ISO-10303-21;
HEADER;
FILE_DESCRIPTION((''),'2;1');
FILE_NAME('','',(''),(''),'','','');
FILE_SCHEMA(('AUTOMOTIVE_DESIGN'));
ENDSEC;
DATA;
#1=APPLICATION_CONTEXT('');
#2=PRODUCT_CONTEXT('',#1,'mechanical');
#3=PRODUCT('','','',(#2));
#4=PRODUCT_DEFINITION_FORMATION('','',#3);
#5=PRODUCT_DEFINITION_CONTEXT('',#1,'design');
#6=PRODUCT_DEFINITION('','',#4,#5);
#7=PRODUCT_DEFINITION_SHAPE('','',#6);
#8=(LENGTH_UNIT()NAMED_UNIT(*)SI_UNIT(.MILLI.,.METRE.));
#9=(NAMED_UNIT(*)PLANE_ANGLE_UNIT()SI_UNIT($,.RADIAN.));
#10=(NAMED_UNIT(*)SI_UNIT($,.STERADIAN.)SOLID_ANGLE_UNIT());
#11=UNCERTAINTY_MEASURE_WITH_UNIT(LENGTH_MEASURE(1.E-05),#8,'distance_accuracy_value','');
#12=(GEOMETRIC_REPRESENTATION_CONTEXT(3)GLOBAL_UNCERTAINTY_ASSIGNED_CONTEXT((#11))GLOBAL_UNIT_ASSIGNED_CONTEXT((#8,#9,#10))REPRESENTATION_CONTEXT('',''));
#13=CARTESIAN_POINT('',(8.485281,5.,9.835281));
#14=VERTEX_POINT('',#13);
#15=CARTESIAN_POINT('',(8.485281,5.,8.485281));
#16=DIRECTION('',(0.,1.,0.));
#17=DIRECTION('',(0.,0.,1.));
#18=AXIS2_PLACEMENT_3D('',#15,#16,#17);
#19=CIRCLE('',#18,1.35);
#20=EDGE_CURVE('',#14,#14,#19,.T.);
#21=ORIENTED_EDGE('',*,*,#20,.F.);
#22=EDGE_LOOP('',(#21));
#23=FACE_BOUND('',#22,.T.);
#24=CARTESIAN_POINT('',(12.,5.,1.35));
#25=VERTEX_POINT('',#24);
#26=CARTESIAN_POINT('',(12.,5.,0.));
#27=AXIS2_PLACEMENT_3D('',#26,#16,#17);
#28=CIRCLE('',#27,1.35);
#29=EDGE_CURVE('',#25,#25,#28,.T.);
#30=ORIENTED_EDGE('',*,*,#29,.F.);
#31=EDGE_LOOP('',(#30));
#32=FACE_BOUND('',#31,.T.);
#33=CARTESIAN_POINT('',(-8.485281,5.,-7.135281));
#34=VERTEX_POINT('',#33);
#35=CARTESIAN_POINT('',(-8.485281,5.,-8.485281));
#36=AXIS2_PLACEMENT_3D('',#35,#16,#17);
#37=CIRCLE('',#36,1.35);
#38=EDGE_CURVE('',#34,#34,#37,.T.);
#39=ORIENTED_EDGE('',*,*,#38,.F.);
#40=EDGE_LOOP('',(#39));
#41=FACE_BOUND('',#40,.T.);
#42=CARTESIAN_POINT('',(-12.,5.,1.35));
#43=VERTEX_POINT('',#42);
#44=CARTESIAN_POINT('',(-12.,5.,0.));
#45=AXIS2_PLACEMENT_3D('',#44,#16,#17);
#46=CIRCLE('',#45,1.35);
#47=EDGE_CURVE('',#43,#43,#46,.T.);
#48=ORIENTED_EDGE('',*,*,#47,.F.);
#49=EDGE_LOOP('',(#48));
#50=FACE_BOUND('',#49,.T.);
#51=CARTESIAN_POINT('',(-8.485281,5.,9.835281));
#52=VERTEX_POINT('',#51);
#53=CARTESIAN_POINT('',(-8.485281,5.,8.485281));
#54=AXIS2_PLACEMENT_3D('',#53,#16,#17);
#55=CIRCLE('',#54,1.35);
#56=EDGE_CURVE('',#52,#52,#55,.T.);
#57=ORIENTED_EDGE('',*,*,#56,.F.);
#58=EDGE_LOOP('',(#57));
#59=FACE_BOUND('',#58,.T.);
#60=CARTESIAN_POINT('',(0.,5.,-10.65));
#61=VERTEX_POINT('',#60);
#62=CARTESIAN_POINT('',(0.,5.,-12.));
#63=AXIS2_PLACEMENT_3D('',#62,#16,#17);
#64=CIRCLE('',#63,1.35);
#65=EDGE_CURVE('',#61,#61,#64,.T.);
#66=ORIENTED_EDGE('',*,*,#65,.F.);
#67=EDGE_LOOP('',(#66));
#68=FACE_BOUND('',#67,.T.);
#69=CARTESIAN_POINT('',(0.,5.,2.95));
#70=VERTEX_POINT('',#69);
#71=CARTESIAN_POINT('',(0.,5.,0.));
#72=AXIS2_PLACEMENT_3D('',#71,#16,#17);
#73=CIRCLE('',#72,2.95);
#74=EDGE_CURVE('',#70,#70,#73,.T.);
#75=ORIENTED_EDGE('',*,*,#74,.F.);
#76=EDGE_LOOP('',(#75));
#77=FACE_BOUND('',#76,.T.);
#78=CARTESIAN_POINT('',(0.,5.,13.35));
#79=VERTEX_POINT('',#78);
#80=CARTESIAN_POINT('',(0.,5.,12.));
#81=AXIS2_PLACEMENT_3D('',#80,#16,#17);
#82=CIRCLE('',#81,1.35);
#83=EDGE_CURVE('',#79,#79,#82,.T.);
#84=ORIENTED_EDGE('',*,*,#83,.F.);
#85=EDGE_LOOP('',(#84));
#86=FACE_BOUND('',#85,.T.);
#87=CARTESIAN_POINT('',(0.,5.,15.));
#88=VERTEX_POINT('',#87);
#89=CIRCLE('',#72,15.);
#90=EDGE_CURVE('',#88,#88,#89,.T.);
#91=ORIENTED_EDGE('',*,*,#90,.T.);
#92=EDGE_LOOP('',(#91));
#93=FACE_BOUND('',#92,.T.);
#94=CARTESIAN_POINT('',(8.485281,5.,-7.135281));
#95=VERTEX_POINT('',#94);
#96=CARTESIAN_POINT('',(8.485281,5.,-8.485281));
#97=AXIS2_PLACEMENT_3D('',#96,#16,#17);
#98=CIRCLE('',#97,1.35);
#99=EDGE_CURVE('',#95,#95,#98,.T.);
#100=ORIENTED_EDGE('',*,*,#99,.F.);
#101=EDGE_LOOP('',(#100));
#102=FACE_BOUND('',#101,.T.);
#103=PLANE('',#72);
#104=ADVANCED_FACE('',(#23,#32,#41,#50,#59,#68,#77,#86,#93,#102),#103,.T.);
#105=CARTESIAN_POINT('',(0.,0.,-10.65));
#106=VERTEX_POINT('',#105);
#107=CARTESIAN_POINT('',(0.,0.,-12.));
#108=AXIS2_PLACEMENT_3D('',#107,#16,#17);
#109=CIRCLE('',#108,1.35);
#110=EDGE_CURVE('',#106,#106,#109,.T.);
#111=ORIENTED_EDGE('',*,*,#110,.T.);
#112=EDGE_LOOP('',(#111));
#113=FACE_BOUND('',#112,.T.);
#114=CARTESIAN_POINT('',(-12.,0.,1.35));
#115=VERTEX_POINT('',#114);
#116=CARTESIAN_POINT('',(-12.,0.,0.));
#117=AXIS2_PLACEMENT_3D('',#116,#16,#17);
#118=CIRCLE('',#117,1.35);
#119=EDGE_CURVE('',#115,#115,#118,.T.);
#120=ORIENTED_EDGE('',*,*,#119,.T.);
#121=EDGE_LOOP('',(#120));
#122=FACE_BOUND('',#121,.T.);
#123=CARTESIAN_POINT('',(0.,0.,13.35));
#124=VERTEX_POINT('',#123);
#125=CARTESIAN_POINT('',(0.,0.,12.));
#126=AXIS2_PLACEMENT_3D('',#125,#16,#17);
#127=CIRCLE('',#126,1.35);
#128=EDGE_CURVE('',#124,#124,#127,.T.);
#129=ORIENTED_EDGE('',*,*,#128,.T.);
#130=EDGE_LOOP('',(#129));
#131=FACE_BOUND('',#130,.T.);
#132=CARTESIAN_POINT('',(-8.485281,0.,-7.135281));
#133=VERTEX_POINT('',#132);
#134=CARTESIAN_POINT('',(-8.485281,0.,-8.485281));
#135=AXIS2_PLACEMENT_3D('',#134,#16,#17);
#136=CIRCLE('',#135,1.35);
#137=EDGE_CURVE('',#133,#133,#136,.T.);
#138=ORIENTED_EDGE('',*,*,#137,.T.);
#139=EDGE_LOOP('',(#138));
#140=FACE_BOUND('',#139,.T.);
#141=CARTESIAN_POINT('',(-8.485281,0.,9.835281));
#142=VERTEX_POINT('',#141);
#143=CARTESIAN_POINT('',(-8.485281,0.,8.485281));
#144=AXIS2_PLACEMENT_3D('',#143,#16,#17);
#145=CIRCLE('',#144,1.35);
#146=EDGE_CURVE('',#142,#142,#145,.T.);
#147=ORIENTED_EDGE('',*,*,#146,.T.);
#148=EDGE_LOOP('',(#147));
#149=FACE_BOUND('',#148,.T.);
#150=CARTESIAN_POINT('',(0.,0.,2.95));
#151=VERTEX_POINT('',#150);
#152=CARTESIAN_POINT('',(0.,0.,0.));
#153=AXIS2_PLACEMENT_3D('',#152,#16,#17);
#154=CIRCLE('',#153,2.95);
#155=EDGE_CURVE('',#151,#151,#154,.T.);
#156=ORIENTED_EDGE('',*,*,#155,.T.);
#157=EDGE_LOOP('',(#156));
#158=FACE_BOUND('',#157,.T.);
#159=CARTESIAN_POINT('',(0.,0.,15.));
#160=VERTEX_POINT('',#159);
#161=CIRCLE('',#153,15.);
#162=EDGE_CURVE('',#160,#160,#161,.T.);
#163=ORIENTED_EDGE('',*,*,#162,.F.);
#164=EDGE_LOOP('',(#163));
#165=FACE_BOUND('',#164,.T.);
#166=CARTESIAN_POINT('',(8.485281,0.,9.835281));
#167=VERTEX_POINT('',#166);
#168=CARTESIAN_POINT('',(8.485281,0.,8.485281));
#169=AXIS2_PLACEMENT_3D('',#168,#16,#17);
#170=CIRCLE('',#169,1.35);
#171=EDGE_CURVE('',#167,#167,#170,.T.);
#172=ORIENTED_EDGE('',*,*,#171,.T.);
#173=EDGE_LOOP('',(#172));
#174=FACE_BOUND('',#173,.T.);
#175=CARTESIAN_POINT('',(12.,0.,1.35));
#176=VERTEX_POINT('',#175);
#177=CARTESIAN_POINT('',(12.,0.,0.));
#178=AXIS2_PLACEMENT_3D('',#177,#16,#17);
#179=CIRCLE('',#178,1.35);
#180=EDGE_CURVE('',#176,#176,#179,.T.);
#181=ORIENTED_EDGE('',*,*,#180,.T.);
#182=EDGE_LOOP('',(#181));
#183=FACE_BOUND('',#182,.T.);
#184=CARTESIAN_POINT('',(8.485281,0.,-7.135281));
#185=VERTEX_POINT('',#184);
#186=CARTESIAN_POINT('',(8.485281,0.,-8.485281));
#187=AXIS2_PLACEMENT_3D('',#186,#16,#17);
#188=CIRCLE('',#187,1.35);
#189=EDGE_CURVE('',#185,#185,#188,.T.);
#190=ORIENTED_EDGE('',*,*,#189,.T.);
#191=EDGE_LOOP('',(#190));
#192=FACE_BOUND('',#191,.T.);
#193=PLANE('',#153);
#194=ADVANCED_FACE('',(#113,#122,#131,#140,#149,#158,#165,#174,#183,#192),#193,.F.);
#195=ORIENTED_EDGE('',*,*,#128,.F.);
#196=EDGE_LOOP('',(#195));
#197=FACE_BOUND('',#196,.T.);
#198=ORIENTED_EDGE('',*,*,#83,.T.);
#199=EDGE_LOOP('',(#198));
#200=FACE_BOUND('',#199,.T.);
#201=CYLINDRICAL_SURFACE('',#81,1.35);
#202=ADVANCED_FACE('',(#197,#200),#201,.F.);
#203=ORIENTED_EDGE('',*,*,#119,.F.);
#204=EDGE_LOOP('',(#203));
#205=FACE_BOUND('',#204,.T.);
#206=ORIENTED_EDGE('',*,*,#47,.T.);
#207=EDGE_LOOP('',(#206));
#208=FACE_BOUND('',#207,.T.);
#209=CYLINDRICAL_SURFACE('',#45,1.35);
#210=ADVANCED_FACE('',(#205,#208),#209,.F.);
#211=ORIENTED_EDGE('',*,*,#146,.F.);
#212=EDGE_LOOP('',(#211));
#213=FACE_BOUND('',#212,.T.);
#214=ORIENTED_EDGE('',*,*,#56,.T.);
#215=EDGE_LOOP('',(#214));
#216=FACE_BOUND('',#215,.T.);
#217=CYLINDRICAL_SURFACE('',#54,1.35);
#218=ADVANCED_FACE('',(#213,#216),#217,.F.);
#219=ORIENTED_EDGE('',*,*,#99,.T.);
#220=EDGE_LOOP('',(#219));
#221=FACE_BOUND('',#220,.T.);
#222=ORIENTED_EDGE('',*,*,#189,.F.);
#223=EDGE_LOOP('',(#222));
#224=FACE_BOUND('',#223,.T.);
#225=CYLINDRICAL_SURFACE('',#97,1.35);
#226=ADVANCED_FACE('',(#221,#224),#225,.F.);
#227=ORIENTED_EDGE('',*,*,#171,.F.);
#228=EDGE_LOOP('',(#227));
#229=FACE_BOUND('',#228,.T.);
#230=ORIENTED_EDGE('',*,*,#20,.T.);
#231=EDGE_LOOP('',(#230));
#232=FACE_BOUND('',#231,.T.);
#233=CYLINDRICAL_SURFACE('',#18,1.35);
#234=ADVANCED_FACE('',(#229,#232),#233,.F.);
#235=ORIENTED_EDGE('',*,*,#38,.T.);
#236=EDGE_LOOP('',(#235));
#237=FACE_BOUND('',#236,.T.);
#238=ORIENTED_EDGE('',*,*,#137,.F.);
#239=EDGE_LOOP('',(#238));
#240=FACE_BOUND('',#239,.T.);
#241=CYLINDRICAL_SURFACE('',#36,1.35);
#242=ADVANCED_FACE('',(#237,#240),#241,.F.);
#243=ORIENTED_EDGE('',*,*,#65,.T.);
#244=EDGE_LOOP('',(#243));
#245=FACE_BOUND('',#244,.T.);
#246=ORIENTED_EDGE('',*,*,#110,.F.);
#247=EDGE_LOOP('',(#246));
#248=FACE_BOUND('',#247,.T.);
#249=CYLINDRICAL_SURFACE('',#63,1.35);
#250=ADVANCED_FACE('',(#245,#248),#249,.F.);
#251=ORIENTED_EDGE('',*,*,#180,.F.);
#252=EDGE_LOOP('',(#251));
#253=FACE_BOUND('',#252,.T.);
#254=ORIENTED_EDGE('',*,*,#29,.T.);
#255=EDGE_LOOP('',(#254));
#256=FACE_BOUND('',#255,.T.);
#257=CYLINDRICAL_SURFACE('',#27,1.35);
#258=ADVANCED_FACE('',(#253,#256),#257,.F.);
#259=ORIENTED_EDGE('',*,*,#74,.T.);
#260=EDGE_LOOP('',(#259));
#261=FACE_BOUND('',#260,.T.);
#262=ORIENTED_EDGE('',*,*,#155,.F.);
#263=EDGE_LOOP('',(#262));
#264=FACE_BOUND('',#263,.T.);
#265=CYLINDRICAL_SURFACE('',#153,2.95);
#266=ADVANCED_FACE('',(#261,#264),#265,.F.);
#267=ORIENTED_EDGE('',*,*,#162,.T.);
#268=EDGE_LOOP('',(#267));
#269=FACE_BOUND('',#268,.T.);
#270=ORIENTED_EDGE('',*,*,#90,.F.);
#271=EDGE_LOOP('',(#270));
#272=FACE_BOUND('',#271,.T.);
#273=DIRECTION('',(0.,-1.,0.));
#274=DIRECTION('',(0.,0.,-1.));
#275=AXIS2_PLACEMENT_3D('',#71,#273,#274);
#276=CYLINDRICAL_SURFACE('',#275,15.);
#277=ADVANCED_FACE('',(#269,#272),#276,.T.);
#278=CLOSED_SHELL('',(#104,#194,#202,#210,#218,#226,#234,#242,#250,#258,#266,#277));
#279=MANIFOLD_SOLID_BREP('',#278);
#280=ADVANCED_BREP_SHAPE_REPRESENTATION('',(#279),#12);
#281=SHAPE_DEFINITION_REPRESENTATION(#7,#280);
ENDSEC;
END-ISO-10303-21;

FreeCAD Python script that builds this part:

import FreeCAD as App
import Part
import Sketcher
from FreeCAD import Vector
Q = App.Units.Quantity

doc = App.newDocument("Part")
body = doc.addObject("PartDesign::Body", "Body")

# Sketch on XZ plane
sketch1 = doc.addObject("Sketcher::SketchObject", "Sketch")
body.addObject(sketch1)
sketch1.AttachmentSupport = (doc.XZ_Plane, [""])
sketch1.MapMode = "FlatFace"
sketch1.addGeometry(Part.Circle(Vector(0, 0, 0), Vector(0, 0, 1), 15), False)
sketch1.addConstraint(Sketcher.Constraint("Coincident", 0, 3, -1, 1))
sketch1.addConstraint(Sketcher.Constraint("Diameter", 0, Q("30 mm")))
pad1 = doc.addObject("PartDesign::Pad", "Pad")
body.addObject(pad1)
pad1.Profile = sketch1
pad1.Length = 5
pad1.Reversed = True

# Sketch on XZ plane
sketch2 = doc.addObject("Sketcher::SketchObject", "Sketch001")
body.addObject(sketch2)
sketch2.AttachmentSupport = (doc.XZ_Plane, [""])
sketch2.MapMode = "FlatFace"
sketch2.AttachmentOffset = App.Placement(Vector(0, 0, -5), App.Rotation())
sketch2.addGeometry(Part.Circle(Vector(0, 0, 0), Vector(0, 0, 1), 3), False)
sketch2.addConstraint(Sketcher.Constraint("Coincident", 0, 3, -1, 1))
sketch2.addConstraint(Sketcher.Constraint("Diameter", 0, Q("5.9 mm")))
pocket1 = doc.addObject("PartDesign::Pocket", "Pocket")
body.addObject(pocket1)
pocket1.Profile = sketch2
pocket1.Type = "ThroughAll"
pocket1.Reversed = True

# Sketch on XZ plane
sketch3 = doc.addObject("Sketcher::SketchObject", "Sketch002")
body.addObject(sketch3)
sketch3.AttachmentSupport = (doc.XZ_Plane, [""])
sketch3.MapMode = "FlatFace"
sketch3.AttachmentOffset = App.Placement(Vector(0, 0, -5), App.Rotation())
sketch3.addGeometry(Part.Circle(Vector(0, 0, 0), Vector(0, 0, 1), 1.4), False)
sketch3.addGeometry(Part.Circle(Vector(-12, 0, 0), Vector(0, 0, 1), 1.4), False)
sketch3.addGeometry(Part.Circle(Vector(-8.5, -8.5, 0), Vector(0, 0, 1), 1.4), False)
sketch3.addGeometry(Part.Circle(Vector(0, -12, 0), Vector(0, 0, 1), 1.4), False)
sketch3.addGeometry(Part.Circle(Vector(8.5, -8.5, 0), Vector(0, 0, 1), 1.4), False)
sketch3.addGeometry(Part.Circle(Vector(12, 0, 0), Vector(0, 0, 1), 1.4), False)
sketch3.addGeometry(Part.Circle(Vector(8.5, 8.5, 0), Vector(0, 0, 1), 1.4), False)
sketch3.addGeometry(Part.Circle(Vector(0, 12, 0), Vector(0, 0, 1), 1.4), False)
sketch3.addGeometry(Part.Circle(Vector(-8.5, 8.5, 0), Vector(0, 0, 1), 1.4), False)
sketch3.addConstraint(Sketcher.Constraint("Coincident", 0, 3, -1, 1))
sketch3.addConstraint(Sketcher.Constraint("Equal", 0, 1))
sketch3.addConstraint(Sketcher.Constraint("Equal", 1, 2))
sketch3.addConstraint(Sketcher.Constraint("Equal", 2, 3))
sketch3.addConstraint(Sketcher.Constraint("Equal", 3, 4))
sketch3.addConstraint(Sketcher.Constraint("Equal", 4, 5))
sketch3.addConstraint(Sketcher.Constraint("Equal", 5, 6))
sketch3.addConstraint(Sketcher.Constraint("Equal", 6, 7))
sketch3.addConstraint(Sketcher.Constraint("Equal", 7, 8))
sketch3.addConstraint(Sketcher.Constraint("Symmetric", 1, 3, 5, 3, -1, 1))
sketch3.addConstraint(Sketcher.Constraint("Symmetric", 2, 3, 6, 3, -1, 1))
sketch3.addConstraint(Sketcher.Constraint("Symmetric", 3, 3, 7, 3, -1, 1))
sketch3.addConstraint(Sketcher.Constraint("Symmetric", 4, 3, 8, 3, -1, 1))
sketch3.addConstraint(Sketcher.Constraint("Symmetric", 2, 3, 4, 3, -2))
sketch3.addConstraint(Sketcher.Constraint("PointOnObject", 1, 3, -1))
sketch3.addConstraint(Sketcher.Constraint("PointOnObject", 3, 3, -2))
sketch3.addConstraint(Sketcher.Constraint("Diameter", 0, Q("2.7 mm")))
sketch3.addConstraint(Sketcher.Constraint("DistanceX", 1, 3, -1, 1, Q("12 mm")))
sketch3.addConstraint(Sketcher.Constraint("DistanceY", 3, 3, -1, 1, Q("12 mm")))
sketch3.addConstraint(Sketcher.Constraint("DistanceX", 2, 3, -1, 1, Q("8.485281 mm")))
sketch3.addConstraint(Sketcher.Constraint("DistanceY", 2, 3, -1, 1, Q("8.485281 mm")))
doc.recompute()
hole = doc.addObject("PartDesign::Hole", "Hole")
body.addObject(hole)
hole.Profile = sketch3
hole.ThreadType = "None"
hole.Diameter = 2.7
hole.DepthType = "ThroughAll"
hole.Reversed = True

doc.recompute()
